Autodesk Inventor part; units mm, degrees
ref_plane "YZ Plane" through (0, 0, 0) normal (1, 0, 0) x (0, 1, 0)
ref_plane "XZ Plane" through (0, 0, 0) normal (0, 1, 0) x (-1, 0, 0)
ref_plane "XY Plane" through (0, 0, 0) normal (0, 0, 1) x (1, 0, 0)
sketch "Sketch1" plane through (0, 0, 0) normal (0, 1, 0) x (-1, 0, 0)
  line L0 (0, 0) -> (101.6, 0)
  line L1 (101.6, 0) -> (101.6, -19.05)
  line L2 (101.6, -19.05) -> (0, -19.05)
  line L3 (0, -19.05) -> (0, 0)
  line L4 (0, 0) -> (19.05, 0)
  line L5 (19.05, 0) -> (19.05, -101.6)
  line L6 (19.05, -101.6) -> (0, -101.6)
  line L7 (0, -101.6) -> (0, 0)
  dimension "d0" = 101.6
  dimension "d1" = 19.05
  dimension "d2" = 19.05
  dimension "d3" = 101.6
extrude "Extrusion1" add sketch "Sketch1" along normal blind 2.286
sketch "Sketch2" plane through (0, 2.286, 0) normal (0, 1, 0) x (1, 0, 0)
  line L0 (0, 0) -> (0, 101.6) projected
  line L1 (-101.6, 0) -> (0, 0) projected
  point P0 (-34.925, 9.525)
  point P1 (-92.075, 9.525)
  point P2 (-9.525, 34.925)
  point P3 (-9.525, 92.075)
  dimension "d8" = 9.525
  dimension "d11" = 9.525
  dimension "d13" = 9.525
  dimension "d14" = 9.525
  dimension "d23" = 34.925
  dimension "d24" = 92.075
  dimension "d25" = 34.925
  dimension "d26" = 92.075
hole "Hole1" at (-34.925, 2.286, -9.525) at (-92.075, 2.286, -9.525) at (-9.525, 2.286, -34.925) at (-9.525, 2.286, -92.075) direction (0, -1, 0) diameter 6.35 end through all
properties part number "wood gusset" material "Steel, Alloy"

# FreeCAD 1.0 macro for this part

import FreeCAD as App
import Part
import Sketcher
from FreeCAD import Vector
Q = App.Units.Quantity


def add_polygon(sketch, points):
    """Adds a closed chain of lines whose ends are joined by coincident constraints."""
    first, n = sketch.GeometryCount, len(points)
    for a, b in zip(points, points[1:] + points[:1]):
        sketch.addGeometry(Part.LineSegment(App.Vector(*a, 0), App.Vector(*b, 0)), False)
    for i in range(n):
        sketch.addConstraint(Sketcher.Constraint("Coincident", first + i, 2, first + (i + 1) % n, 1))

doc = App.newDocument("Part")
params = doc.addObject("Spreadsheet::Sheet", "Params")
for row, (alias, value) in enumerate([
    ("sketch1_width", "4 in"),
    ("sketch1_width2", "0.75 in"),
    ("pad1_length", "0.09 in"),
    ("sketch2_diameter", "0.25 in"),
    ("hole_diameter", "0.25 in"),
], start=1):
    params.set(f"A{row}", alias)
    params.set(f"B{row}", "=" + value)
    params.setAlias(f"B{row}", alias)

body = doc.addObject("PartDesign::Body", "Body")

# Sketch on XZ plane
sketch1 = body.newObject("Sketcher::SketchObject", "Sketch")
sketch1.AttachmentSupport = (doc.getObject("XZ_Plane"), [""])
sketch1.MapMode = "FlatFace"
add_polygon(sketch1, [(0, 0), (0, -102), (-19, -102), (-19, -19), (-102, -19), (-102, 0)])  # lines 0-5
sketch1.addConstraint(Sketcher.Constraint("Vertical", 0))
sketch1.addConstraint(Sketcher.Constraint("Horizontal", 1))
sketch1.addConstraint(Sketcher.Constraint("Vertical", 2))
sketch1.addConstraint(Sketcher.Constraint("Horizontal", 3))
sketch1.addConstraint(Sketcher.Constraint("Vertical", 4))
sketch1.addConstraint(Sketcher.Constraint("Horizontal", 5))
sketch1.addConstraint(Sketcher.Constraint("Coincident", 5, 2, -1, 1))
sketch1.addConstraint(Sketcher.Constraint("Equal", 5, 0))
sketch1.addConstraint(Sketcher.Constraint("Equal", 3, 2))
sketch1.addConstraint(Sketcher.Constraint("DistanceX", 5, 1, 5, 2, Q("4 in")))
sketch1.addConstraint(Sketcher.Constraint("DistanceX", 1, 2, 1, 1, Q("0.75 in")))
sketch1.setExpression("Constraints[15]", "Params.sketch1_width")
sketch1.setExpression("Constraints[16]", "Params.sketch1_width2")
pad1 = body.newObject("PartDesign::Pad", "Pad")
pad1.Profile = sketch1
pad1.setExpression("Length", "Params.pad1_length")
pad1.Reversed = True

# Sketch on XZ plane
sketch2 = body.newObject("Sketcher::SketchObject", "Sketch001")
sketch2.AttachmentSupport = (doc.getObject("XZ_Plane"), [""])
sketch2.MapMode = "FlatFace"
sketch2.AttachmentOffset = App.Placement(Vector(0, 0, -0.09 * 25.4), App.Rotation())
sketch2.addGeometry(Part.Circle(Vector(-34.9, -9.5, 0), Vector(0, 0, 1), 3.2), False)
sketch2.addGeometry(Part.Circle(Vector(-92.1, -9.5, 0), Vector(0, 0, 1), 3.2), False)
sketch2.addGeometry(Part.Circle(Vector(-9.5, -34.9, 0), Vector(0, 0, 1), 3.2), False)
sketch2.addGeometry(Part.Circle(Vector(-9.5, -92.1, 0), Vector(0, 0, 1), 3.2), False)
sketch2.addConstraint(Sketcher.Constraint("Equal", 0, 1))
sketch2.addConstraint(Sketcher.Constraint("Equal", 1, 2))
sketch2.addConstraint(Sketcher.Constraint("Equal", 2, 3))
sketch2.addConstraint(Sketcher.Constraint("Horizontal", 0, 3, 1, 3))
sketch2.addConstraint(Sketcher.Constraint("Vertical", 2, 3, 3, 3))
sketch2.addConstraint(Sketcher.Constraint("Diameter", 0, Q("0.25 in")))
sketch2.addConstraint(Sketcher.Constraint("DistanceX", 0, 3, 2, 3, Q("1 in")))
sketch2.addConstraint(Sketcher.Constraint("DistanceY", 2, 3, 0, 3, Q("1 in")))
sketch2.addConstraint(Sketcher.Constraint("DistanceX", 1, 3, 0, 3, Q("2.25 in")))
sketch2.addConstraint(Sketcher.Constraint("DistanceY", 3, 3, 2, 3, Q("2.25 in")))
sketch2.addConstraint(Sketcher.Constraint("DistanceX", 0, 3, -1, 1, Q("1.375 in")))
sketch2.addConstraint(Sketcher.Constraint("DistanceY", 0, 3, -1, 1, Q("0.375 in")))
sketch2.setExpression("Constraints[5]", "Params.sketch2_diameter")
doc.recompute()
hole = body.newObject("PartDesign::Hole", "Hole")
hole.Profile = sketch2
hole.ThreadType = "None"
hole.setExpression("Diameter", "Params.hole_diameter")
hole.DepthType = "ThroughAll"
hole.Reversed = True

doc.recompute()
